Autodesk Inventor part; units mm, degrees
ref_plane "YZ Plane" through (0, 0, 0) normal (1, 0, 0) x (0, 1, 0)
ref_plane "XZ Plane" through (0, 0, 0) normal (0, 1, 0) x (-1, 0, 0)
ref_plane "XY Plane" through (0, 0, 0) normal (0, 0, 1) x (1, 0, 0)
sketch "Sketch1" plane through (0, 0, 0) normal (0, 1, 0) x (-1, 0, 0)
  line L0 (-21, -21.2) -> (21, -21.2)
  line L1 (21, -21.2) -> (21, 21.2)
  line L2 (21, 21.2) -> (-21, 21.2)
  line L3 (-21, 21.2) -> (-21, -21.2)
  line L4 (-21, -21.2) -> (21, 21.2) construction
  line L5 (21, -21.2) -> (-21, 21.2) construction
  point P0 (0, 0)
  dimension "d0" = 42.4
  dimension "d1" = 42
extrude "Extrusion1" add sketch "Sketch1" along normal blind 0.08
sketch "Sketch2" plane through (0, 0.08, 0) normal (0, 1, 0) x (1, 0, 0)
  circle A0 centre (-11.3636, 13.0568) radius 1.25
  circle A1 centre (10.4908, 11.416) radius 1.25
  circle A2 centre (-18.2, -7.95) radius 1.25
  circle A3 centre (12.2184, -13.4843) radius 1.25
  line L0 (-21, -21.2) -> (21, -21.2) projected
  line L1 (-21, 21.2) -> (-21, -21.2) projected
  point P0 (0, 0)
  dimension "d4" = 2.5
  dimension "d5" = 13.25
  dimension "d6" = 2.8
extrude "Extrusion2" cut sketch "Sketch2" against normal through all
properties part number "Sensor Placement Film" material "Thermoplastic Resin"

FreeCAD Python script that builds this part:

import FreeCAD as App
import Part
import Sketcher
Q = App.Units.Quantity

doc = App.newDocument("Part")
body = doc.addObject("PartDesign::Body", "Body")

# Sketch on XZ plane
sketch1 = body.newObject("Sketcher::SketchObject", "Sketch")
sketch1.AttachmentSupport = (doc.getObject("XZ_Plane"), [""])
sketch1.MapMode = "FlatFace"
sketch1.addGeometry(Part.LineSegment(App.Vector(21, 21, 0), App.Vector(21, -21, 0)), False)
sketch1.addGeometry(Part.LineSegment(App.Vector(21, -21, 0), App.Vector(-21, -21, 0)), False)
sketch1.addGeometry(Part.LineSegment(App.Vector(-21, -21, 0), App.Vector(-21, 21, 0)), False)
sketch1.addGeometry(Part.LineSegment(App.Vector(-21, 21, 0), App.Vector(21, 21, 0)), False)
sketch1.addConstraint(Sketcher.Constraint("Coincident", 0, 2, 1, 1))
sketch1.addConstraint(Sketcher.Constraint("Coincident", 1, 2, 2, 1))
sketch1.addConstraint(Sketcher.Constraint("Coincident", 2, 2, 3, 1))
sketch1.addConstraint(Sketcher.Constraint("Coincident", 3, 2, 0, 1))
sketch1.addConstraint(Sketcher.Constraint("Vertical", 0))
sketch1.addConstraint(Sketcher.Constraint("Horizontal", 1))
sketch1.addConstraint(Sketcher.Constraint("Vertical", 2))
sketch1.addConstraint(Sketcher.Constraint("Horizontal", 3))
sketch1.addConstraint(Sketcher.Constraint("Symmetric", 0, 2, 2, 2, -1, 1))
sketch1.addConstraint(Sketcher.Constraint("DistanceX", 1, 2, 1, 1, Q("42 mm")))
sketch1.addConstraint(Sketcher.Constraint("DistanceY", 0, 2, 0, 1, Q("42.4 mm")))
pad1 = body.newObject("PartDesign::Pad", "Pad")
pad1.Profile = sketch1
pad1.Length = 0.08
pad1.Reversed = True

# Sketch on XZ plane
sketch2 = body.newObject("Sketcher::SketchObject", "Sketch001")
sketch2.AttachmentSupport = (doc.getObject("XZ_Plane"), [""])
sketch2.MapMode = "FlatFace"
sketch2.AttachmentOffset = App.Placement(App.Vector(0, 0, -0.08), App.Rotation())
sketch2.addGeometry(Part.Circle(App.Vector(-11.4, -13.1, 0), App.Vector(0, 0, 1), 1.2), False)
sketch2.addGeometry(Part.Circle(App.Vector(10.5, -11.4, 0), App.Vector(0, 0, 1), 1.2), False)
sketch2.addGeometry(Part.Circle(App.Vector(-18.2, 8, 0), App.Vector(0, 0, 1), 1.2), False)
sketch2.addGeometry(Part.Circle(App.Vector(12.2, 13.5, 0), App.Vector(0, 0, 1), 1.2), False)
sketch2.addConstraint(Sketcher.Constraint("Equal", 0, 1))
sketch2.addConstraint(Sketcher.Constraint("Equal", 1, 2))
sketch2.addConstraint(Sketcher.Constraint("Equal", 2, 3))
sketch2.addConstraint(Sketcher.Constraint("Diameter", 0, Q("2.5 mm")))
sketch2.addConstraint(Sketcher.Constraint("DistanceX", 2, 3, -1, 1, Q("18.2 mm")))
sketch2.addConstraint(Sketcher.Constraint("DistanceY", -1, 1, 2, 3, Q("7.95 mm")))
sketch2.addConstraint(Sketcher.Constraint("DistanceY", 1, 3, -1, 1, Q("11.416 mm")))
sketch2.addConstraint(Sketcher.Constraint("DistanceX", 0, 3, 3, 3, Q("23.582 mm")))
sketch2.addConstraint(Sketcher.Constraint("DistanceY", 0, 3, 3, 3, Q("26.541 mm")))
sketch2.addConstraint(Sketcher.Constraint("DistanceX", 0, 3, -1, 1, Q("11.3636 mm")))
sketch2.addConstraint(Sketcher.Constraint("DistanceY", 0, 3, -1, 1, Q("13.0568 mm")))
sketch2.addConstraint(Sketcher.Constraint("DistanceX", -1, 1, 1, 3, Q("10.4908 mm")))
pocket1 = body.newObject("PartDesign::Pocket", "Pocket")
pocket1.Profile = sketch2
pocket1.Type = "ThroughAll"
pocket1.Reversed = True

doc.recompute()
